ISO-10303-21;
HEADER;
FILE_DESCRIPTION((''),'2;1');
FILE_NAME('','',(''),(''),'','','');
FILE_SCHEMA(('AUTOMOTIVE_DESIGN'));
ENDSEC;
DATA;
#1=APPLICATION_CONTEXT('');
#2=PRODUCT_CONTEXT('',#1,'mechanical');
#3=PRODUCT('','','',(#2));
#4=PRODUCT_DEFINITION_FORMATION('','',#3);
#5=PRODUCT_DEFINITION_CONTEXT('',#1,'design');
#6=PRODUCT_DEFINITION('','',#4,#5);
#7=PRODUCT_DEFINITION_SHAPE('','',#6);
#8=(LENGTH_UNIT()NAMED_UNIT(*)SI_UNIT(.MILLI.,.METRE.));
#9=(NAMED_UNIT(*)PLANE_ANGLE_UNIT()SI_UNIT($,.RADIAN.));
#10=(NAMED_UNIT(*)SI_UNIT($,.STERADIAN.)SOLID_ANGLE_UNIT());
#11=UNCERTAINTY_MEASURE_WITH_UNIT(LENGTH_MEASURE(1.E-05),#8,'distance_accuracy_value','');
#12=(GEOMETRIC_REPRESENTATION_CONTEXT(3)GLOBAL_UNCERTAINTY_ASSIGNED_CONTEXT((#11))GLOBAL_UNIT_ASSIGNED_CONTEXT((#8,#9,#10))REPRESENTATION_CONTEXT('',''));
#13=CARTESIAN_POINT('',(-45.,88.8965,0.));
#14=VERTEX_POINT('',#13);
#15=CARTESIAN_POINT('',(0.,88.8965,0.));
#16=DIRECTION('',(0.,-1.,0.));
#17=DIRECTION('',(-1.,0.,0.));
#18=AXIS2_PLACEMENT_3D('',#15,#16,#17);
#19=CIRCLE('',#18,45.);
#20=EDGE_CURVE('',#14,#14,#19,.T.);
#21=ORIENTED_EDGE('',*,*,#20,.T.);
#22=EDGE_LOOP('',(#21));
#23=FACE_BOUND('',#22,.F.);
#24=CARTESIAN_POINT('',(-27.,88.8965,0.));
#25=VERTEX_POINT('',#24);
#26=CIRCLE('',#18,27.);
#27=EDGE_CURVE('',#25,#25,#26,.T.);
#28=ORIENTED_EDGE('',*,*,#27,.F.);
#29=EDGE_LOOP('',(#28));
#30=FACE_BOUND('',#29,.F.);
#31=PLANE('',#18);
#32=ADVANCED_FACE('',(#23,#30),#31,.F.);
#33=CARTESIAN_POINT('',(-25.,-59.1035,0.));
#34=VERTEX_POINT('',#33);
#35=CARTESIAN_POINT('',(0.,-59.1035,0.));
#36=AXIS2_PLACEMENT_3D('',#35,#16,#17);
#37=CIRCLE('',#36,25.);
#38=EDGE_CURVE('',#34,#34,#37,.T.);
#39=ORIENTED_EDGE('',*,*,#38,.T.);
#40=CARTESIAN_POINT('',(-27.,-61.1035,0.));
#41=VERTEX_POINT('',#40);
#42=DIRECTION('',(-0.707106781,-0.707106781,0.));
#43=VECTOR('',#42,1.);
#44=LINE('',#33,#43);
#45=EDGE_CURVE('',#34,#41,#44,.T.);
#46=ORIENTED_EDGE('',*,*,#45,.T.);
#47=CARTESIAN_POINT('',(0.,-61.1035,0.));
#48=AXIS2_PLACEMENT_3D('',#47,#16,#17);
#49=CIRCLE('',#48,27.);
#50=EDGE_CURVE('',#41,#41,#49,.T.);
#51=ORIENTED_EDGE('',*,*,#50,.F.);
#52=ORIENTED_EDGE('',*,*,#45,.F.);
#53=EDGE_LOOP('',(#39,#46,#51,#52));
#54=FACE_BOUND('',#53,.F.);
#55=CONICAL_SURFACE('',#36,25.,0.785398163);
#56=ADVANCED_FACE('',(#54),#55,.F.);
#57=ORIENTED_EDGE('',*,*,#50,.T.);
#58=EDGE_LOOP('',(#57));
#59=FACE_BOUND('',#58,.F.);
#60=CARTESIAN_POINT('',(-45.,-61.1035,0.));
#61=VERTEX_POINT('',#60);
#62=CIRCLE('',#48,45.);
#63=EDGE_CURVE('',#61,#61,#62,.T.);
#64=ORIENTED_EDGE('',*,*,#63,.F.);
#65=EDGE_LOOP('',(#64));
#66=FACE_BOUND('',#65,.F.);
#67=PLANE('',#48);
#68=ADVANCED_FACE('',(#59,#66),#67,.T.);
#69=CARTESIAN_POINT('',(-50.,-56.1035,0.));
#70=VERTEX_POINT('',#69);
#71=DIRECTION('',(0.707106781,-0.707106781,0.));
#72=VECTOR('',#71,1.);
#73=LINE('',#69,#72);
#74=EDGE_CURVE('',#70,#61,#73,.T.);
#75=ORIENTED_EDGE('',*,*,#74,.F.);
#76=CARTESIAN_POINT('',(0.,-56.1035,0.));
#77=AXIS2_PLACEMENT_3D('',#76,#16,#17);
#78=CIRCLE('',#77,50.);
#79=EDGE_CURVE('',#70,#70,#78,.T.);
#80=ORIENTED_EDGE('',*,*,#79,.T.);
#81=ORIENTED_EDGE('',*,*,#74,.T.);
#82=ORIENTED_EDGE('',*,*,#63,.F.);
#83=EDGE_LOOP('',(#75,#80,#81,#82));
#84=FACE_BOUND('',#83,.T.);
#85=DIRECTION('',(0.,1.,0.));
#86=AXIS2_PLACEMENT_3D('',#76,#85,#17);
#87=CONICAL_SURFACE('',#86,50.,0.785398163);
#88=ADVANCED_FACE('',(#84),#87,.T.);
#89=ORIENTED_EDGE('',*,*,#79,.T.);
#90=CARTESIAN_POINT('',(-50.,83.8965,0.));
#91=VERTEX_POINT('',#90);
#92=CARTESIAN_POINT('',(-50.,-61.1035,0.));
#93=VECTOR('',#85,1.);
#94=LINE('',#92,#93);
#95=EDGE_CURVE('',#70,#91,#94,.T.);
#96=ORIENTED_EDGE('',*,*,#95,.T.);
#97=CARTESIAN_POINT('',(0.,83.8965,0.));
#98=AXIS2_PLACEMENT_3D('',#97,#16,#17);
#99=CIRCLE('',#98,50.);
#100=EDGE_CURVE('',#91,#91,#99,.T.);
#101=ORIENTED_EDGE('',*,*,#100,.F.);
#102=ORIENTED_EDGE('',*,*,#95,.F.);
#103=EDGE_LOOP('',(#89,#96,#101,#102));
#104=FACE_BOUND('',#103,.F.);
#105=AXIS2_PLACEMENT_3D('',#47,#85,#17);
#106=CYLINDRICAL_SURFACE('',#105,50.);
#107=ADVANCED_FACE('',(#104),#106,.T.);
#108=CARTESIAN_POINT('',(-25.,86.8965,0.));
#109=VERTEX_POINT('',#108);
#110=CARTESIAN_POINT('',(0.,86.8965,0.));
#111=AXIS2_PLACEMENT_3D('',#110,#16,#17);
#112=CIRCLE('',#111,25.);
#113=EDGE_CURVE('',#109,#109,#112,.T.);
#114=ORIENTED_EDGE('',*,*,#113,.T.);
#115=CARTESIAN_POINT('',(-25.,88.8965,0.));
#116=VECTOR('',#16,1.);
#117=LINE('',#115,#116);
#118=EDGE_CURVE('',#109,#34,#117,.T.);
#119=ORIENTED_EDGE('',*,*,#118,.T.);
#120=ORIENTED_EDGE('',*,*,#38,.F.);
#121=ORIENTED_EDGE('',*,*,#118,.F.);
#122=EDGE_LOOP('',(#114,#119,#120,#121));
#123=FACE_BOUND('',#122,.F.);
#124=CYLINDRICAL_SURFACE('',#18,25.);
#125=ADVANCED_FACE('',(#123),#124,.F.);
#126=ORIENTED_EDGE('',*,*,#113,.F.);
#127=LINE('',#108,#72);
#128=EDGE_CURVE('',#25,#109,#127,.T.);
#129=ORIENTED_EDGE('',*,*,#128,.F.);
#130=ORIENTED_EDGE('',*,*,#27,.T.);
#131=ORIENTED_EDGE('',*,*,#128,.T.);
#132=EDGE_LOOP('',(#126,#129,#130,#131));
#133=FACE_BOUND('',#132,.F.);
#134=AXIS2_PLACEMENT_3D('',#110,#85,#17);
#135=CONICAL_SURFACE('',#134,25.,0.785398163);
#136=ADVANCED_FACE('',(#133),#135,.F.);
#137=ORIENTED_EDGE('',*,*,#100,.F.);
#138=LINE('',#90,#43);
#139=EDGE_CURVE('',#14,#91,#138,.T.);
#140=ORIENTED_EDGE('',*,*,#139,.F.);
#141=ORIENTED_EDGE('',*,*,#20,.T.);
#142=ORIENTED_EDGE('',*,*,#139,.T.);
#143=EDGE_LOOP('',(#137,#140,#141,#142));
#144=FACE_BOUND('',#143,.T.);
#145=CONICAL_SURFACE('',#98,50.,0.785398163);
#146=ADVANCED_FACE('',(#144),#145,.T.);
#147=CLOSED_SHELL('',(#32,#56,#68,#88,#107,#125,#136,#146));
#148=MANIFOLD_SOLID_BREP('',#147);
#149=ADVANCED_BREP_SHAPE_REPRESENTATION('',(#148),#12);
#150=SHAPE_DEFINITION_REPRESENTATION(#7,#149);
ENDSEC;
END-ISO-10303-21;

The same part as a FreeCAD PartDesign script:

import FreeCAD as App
import Part
import Sketcher

V = App.Vector


def edges_at(feature, points):
    """Names of the edges that pass closest to the given points."""
    edges = feature.Shape.Edges
    near = lambda p: min(range(len(edges)), key=lambda i: edges[i].distToShape(Part.Vertex(*p))[0])
    return sorted({f"Edge{near(p) + 1}" for p in points})

doc = App.newDocument("Part")
params = doc.addObject("Spreadsheet::Sheet", "Params")
for row, (alias, value) in enumerate([
    ("sketch1_width", "25 mm"),
    ("sketch1_height", "150 mm"),
    ("revolution_angle", "360 deg"),
    ("chamfer_size", "2 mm"),
    ("chamfer2_size", "5 mm"),
], start=1):
    params.set(f"A{row}", alias)
    params.set(f"B{row}", "=" + value)
    params.setAlias(f"B{row}", alias)

body = doc.addObject("PartDesign::Body", "Body")

# Sketch on XY plane
sketch1 = body.newObject("Sketcher::SketchObject", "Sketch")
sketch1.AttachmentSupport = (doc.getObject("XY_Plane"), [""])
sketch1.MapMode = "FlatFace"
sketch1.addGeometry(Part.LineSegment(V(-25, 88.8965, 0), V(-50, 88.8965, 0)), False)
sketch1.addGeometry(Part.LineSegment(V(-50, 88.8965, 0), V(-50, -61.1035, 0)), False)
sketch1.addGeometry(Part.LineSegment(V(-50, -61.1035, 0), V(-25, -61.1035, 0)), False)
sketch1.addGeometry(Part.LineSegment(V(-25, -61.1035, 0), V(-25, 88.8965, 0)), False)
sketch1.addConstraint(Sketcher.Constraint("Coincident", 0, 2, 1, 1))
sketch1.addConstraint(Sketcher.Constraint("Coincident", 1, 2, 2, 1))
sketch1.addConstraint(Sketcher.Constraint("Coincident", 2, 2, 3, 1))
sketch1.addConstraint(Sketcher.Constraint("Coincident", 3, 2, 0, 1))
sketch1.addConstraint(Sketcher.Constraint("Horizontal", 0))
sketch1.addConstraint(Sketcher.Constraint("Vertical", 1))
sketch1.addConstraint(Sketcher.Constraint("Horizontal", 2))
sketch1.addConstraint(Sketcher.Constraint("Vertical", 3))
sketch1.addConstraint(Sketcher.Constraint("DistanceX", 0, 2, 0, 1, 25.0))
sketch1.addConstraint(Sketcher.Constraint("DistanceY", 1, 2, 1, 1, 150.0))
sketch1.addConstraint(Sketcher.Constraint("DistanceX", 0, 2, -1, 1, 50.0))
sketch1.addConstraint(Sketcher.Constraint("DistanceY", -1, 1, 0, 2, 88.8965))
sketch1.setExpression("Constraints[8]", "Params.sketch1_width")
sketch1.setExpression("Constraints[9]", "Params.sketch1_height")
revolution = body.newObject("PartDesign::Revolution", "Revolution")
revolution.Profile = sketch1
revolution.ReferenceAxis = (sketch1, ["V_Axis"])
revolution.setExpression("Angle", "Params.revolution_angle")
doc.recompute()

chamfer = body.newObject("PartDesign::Chamfer", "Chamfer")
chamfer.Base = (revolution, edges_at(revolution, [(25, 88.897, 0), (25, -61.103, 0)]))
chamfer.setExpression("Size", "Params.chamfer_size")
doc.recompute()

chamfer2 = body.newObject("PartDesign::Chamfer", "Chamfer001")
chamfer2.Base = (chamfer, edges_at(chamfer, [(50, 88.897, 0), (50, -61.103, 0)]))
chamfer2.setExpression("Size", "Params.chamfer2_size")

doc.recompute()
